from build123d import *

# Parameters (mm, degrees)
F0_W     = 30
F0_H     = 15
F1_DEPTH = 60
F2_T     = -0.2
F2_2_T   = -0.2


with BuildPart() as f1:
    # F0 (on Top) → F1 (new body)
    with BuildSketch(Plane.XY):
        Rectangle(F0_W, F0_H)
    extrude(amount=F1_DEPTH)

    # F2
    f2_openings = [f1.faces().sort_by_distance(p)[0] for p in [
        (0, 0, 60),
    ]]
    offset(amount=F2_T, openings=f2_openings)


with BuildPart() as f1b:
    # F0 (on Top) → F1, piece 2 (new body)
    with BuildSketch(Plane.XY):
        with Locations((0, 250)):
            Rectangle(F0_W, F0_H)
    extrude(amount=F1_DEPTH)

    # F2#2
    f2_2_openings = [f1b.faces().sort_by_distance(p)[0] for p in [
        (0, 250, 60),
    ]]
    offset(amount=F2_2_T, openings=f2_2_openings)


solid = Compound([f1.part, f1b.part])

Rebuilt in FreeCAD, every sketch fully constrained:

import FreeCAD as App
import Part
import Sketcher


def faces_at(feature, points):
    """Names of the faces that lie closest to the given points."""
    faces = feature.Shape.Faces
    near = lambda p: min(range(len(faces)), key=lambda i: faces[i].distToShape(Part.Vertex(*p))[0])
    return sorted({f"Face{near(p) + 1}" for p in points})

doc = App.newDocument("Part")
body = doc.addObject("PartDesign::Body", "Body")

sketch1 = doc.addObject("Sketcher::SketchObject", "Sketch")
body.addObject(sketch1)
sketch1.AttachmentSupport = (doc.XY_Plane, [""])
sketch1.MapMode = "FlatFace"
sketch1.addGeometry(Part.LineSegment(App.Vector(-15, 8, 0), App.Vector(-15, -8, 0)), False)
sketch1.addGeometry(Part.LineSegment(App.Vector(-15, -8, 0), App.Vector(15, -8, 0)), False)
sketch1.addGeometry(Part.LineSegment(App.Vector(15, -8, 0), App.Vector(15, 8, 0)), False)
sketch1.addGeometry(Part.LineSegment(App.Vector(15, 8, 0), App.Vector(-15, 8, 0)), False)
sketch1.addConstraint(Sketcher.Constraint("Coincident", 0, 2, 1, 1))
sketch1.addConstraint(Sketcher.Constraint("Coincident", 1, 2, 2, 1))
sketch1.addConstraint(Sketcher.Constraint("Coincident", 2, 2, 3, 1))
sketch1.addConstraint(Sketcher.Constraint("Coincident", 3, 2, 0, 1))
sketch1.addConstraint(Sketcher.Constraint("Vertical", 0))
sketch1.addConstraint(Sketcher.Constraint("Horizontal", 1))
sketch1.addConstraint(Sketcher.Constraint("Vertical", 2))
sketch1.addConstraint(Sketcher.Constraint("Horizontal", 3))
sketch1.addConstraint(Sketcher.Constraint("Symmetric", 0, 2, 2, 2, -1, 1))
sketch1.addConstraint(Sketcher.Constraint("DistanceX", 1, 1, 1, 2, 30.0))
sketch1.addConstraint(Sketcher.Constraint("DistanceY", 0, 2, 0, 1, 15.0))
pad1 = doc.addObject("PartDesign::Pad", "Pad")
body.addObject(pad1)
pad1.Profile = sketch1
pad1.Length = 60
doc.recompute()

thickness = doc.addObject("PartDesign::Thickness", "Thickness")
body.addObject(thickness)
thickness.Base = (pad1, faces_at(pad1, [(0, 0, 60)]))
thickness.Value = 0.2
thickness.Reversed = True
thickness.Join = "Arc"
body2 = doc.addObject("PartDesign::Body", "Body001")

sketch2 = doc.addObject("Sketcher::SketchObject", "Sketch001")
body2.addObject(sketch2)
sketch2.AttachmentSupport = (doc.getObject("XY_Plane001"), [""])
sketch2.MapMode = "FlatFace"
sketch2.addGeometry(Part.LineSegment(App.Vector(-15, 258, 0), App.Vector(-15, 242, 0)), False)
sketch2.addGeometry(Part.LineSegment(App.Vector(-15, 242, 0), App.Vector(15, 242, 0)), False)
sketch2.addGeometry(Part.LineSegment(App.Vector(15, 242, 0), App.Vector(15, 258, 0)), False)
sketch2.addGeometry(Part.LineSegment(App.Vector(15, 258, 0), App.Vector(-15, 258, 0)), False)
sketch2.addConstraint(Sketcher.Constraint("Coincident", 0, 2, 1, 1))
sketch2.addConstraint(Sketcher.Constraint("Coincident", 1, 2, 2, 1))
sketch2.addConstraint(Sketcher.Constraint("Coincident", 2, 2, 3, 1))
sketch2.addConstraint(Sketcher.Constraint("Coincident", 3, 2, 0, 1))
sketch2.addConstraint(Sketcher.Constraint("Vertical", 0))
sketch2.addConstraint(Sketcher.Constraint("Horizontal", 1))
sketch2.addConstraint(Sketcher.Constraint("Vertical", 2))
sketch2.addConstraint(Sketcher.Constraint("Horizontal", 3))
sketch2.addConstraint(Sketcher.Constraint("DistanceX", 1, 1, 1, 2, 30.0))
sketch2.addConstraint(Sketcher.Constraint("DistanceY", 0, 2, 0, 1, 15.0))
sketch2.addConstraint(Sketcher.Constraint("DistanceX", 0, 2, -1, 1, 15.0))
sketch2.addConstraint(Sketcher.Constraint("DistanceY", -1, 1, 0, 2, 242.5))
pad2 = doc.addObject("PartDesign::Pad", "Pad001")
body2.addObject(pad2)
pad2.Profile = sketch2
pad2.Length = 60
doc.recompute()

thickness2 = doc.addObject("PartDesign::Thickness", "Thickness001")
body2.addObject(thickness2)
thickness2.Base = (pad2, faces_at(pad2, [(0, 250, 60)]))
thickness2.Value = 0.2
thickness2.Reversed = True
thickness2.Join = "Arc"

doc.recompute()
